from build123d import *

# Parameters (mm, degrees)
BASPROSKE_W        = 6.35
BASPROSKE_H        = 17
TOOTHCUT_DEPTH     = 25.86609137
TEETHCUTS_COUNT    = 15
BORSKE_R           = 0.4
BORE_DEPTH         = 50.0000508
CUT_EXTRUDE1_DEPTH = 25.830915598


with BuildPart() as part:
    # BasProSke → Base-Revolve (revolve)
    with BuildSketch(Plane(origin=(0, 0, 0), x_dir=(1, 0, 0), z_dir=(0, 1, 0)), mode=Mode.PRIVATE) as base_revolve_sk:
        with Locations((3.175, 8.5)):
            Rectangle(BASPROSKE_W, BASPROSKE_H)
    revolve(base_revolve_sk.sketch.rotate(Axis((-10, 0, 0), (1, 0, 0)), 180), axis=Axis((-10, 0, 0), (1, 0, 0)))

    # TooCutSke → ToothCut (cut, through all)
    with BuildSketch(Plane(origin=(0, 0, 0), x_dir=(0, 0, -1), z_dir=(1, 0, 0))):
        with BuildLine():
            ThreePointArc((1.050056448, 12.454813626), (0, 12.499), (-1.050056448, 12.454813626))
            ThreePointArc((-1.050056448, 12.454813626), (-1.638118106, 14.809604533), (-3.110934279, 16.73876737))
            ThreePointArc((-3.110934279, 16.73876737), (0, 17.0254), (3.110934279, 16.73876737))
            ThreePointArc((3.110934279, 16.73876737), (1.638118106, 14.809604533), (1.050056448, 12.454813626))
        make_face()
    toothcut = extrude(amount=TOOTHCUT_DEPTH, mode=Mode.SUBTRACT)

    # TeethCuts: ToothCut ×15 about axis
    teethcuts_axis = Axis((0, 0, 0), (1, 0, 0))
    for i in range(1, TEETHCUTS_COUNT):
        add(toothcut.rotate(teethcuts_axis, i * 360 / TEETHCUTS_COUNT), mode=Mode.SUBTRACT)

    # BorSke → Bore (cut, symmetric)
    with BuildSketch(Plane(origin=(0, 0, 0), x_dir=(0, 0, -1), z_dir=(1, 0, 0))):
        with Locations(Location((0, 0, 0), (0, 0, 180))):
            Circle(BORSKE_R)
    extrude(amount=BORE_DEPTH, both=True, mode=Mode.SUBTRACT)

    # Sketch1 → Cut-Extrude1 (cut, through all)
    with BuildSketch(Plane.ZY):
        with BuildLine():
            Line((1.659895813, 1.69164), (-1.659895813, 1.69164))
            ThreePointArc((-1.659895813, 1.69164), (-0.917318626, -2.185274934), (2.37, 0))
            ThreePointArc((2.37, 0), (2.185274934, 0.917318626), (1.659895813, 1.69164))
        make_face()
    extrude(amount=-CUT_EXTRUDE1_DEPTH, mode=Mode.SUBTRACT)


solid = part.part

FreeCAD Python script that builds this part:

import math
import FreeCAD as App
import Part
import Sketcher

V = App.Vector
Q = App.Units.Quantity

doc = App.newDocument("Part")
body = doc.addObject("PartDesign::Body", "Body")

# Sketch on XZ plane
sketch1 = body.newObject("Sketcher::SketchObject", "Sketch")
sketch1.AttachmentSupport = (doc.getObject("XZ_Plane"), [""])
sketch1.MapMode = "FlatFace"
sketch1.addGeometry([
    Part.LineSegment(V(0, -17, 0), V(0, 0, 0)),
    Part.LineSegment(V(0, 0, 0), V(6, 0, 0)),
    Part.LineSegment(V(6, 0, 0), V(6, -17, 0)),
    Part.LineSegment(V(6, -17, 0), V(0, -17, 0)),
], False)
sketch1.addConstraint([
    Sketcher.Constraint("Coincident", 0, 2, 1, 1),
    Sketcher.Constraint("Coincident", 1, 2, 2, 1),
    Sketcher.Constraint("Coincident", 2, 2, 3, 1),
    Sketcher.Constraint("Coincident", 3, 2, 0, 1),
    Sketcher.Constraint("Vertical", 0),
    Sketcher.Constraint("Horizontal", 1),
    Sketcher.Constraint("Vertical", 2),
    Sketcher.Constraint("Horizontal", 3),
    Sketcher.Constraint("Coincident", 0, 2, -1, 1),
    Sketcher.Constraint("DistanceY", 0, 1, 0, 2, Q("17 mm")),
    Sketcher.Constraint("DistanceX", 1, 1, 1, 2, Q("6.35 mm")),
])
revolution = body.newObject("PartDesign::Revolution", "Revolution")
revolution.Profile = sketch1
revolution.ReferenceAxis = (sketch1, ["H_Axis"])
revolution.Angle = 360

# Sketch on YZ plane
sketch2 = body.newObject("Sketcher::SketchObject", "Sketch001")
sketch2.AttachmentSupport = (doc.getObject("YZ_Plane"), [""])
sketch2.MapMode = "FlatFace"
sketch2.addGeometry([
    Part.ArcOfCircle(Part.Circle(V(0, 0, 0), V(0, 0, 1), 12.5), math.radians(-4.82), math.radians(4.82)),
    Part.ArcOfCircle(Part.Circle(V(12.2, -7, 0), V(0, 0, 1), 6), math.radians(41), math.radians(88)),
    Part.ArcOfCircle(Part.Circle(V(0, 0, 0), V(0, 0, 1), 17), math.radians(-11), math.radians(11)),
    Part.ArcOfCircle(Part.Circle(V(12.2, 7, 0), V(0, 0, 1), 6), math.radians(-88), math.radians(-41)),
], False)
sketch2.addConstraint([
    Sketcher.Constraint("Coincident", 0, 1, 1, 2),
    Sketcher.Constraint("Coincident", 1, 1, 2, 1),
    Sketcher.Constraint("Coincident", 2, 2, 3, 2),
    Sketcher.Constraint("Coincident", 3, 1, 0, 2),
    Sketcher.Constraint("Coincident", 0, 3, -1, 1),
    Sketcher.Constraint("Coincident", 2, 3, -1, 1),
    Sketcher.Constraint("Equal", 1, 3),
    Sketcher.Constraint("Symmetric", 1, 3, 3, 3, -1),
    Sketcher.Constraint("Radius", 1, Q("6 mm")),
    Sketcher.Constraint("Radius", 0, Q("12.499 mm")),
    Sketcher.Constraint("Radius", 2, Q("17.0254 mm")),
    Sketcher.Constraint("DistanceY", 1, 3, 3, 3, Q("14.089999 mm")),
    Sketcher.Constraint("DistanceX", -1, 1, 1, 3, Q("12.208521 mm")),
])
pocket1 = body.newObject("PartDesign::Pocket", "Pocket")
pocket1.Profile = sketch2
pocket1.Type = "ThroughAll"
pocket1.Reversed = True
doc.recompute()

polarpattern = body.newObject("PartDesign::PolarPattern", "PolarPattern")
polarpattern.Originals = [pocket1]
polarpattern.Axis = (doc.getObject("X_Axis"), [""])
polarpattern.Angle = 360
polarpattern.Occurrences = 15
body.Tip = polarpattern

# Sketch on YZ plane
sketch3 = body.newObject("Sketcher::SketchObject", "Sketch002")
sketch3.AttachmentSupport = (doc.getObject("YZ_Plane"), [""])
sketch3.MapMode = "FlatFace"
sketch3.addGeometry(Part.Circle(V(0, 0, 0), V(0, 0, 1), 0.4), False)
sketch3.addConstraint([
    Sketcher.Constraint("Coincident", 0, 3, -1, 1),
    Sketcher.Constraint("Diameter", 0, Q("0.8 mm")),
])
pocket2 = body.newObject("PartDesign::Pocket", "Pocket001")
pocket2.Profile = sketch3
pocket2.Length = 100.000102
pocket2.Midplane = True

# Sketch on YZ plane
sketch4 = body.newObject("Sketcher::SketchObject", "Sketch003")
sketch4.AttachmentSupport = (doc.getObject("YZ_Plane"), [""])
sketch4.MapMode = "FlatFace"
sketch4.addGeometry([
    Part.LineSegment(V(1.7, 1.7, 0), V(1.7, -1.7, 0)),
    Part.ArcOfCircle(Part.Circle(V(0, 0, 0), V(0, 0, 1), 2.4), math.radians(90), math.radians(316)),
    Part.ArcOfCircle(Part.Circle(V(0, 0, 0), V(0, 0, 1), 2.4), math.radians(44), math.radians(90)),
], False)
sketch4.addConstraint([
    Sketcher.Constraint("Coincident", 0, 2, 1, 2),
    Sketcher.Constraint("Tangent", 1, 1, 2, 2),
    Sketcher.Constraint("Coincident", 2, 1, 0, 1),
    Sketcher.Constraint("Vertical", 0),
    Sketcher.Constraint("Coincident", 1, 3, -1, 1),
    Sketcher.Constraint("Equal", 1, 2),
    Sketcher.Constraint("PointOnObject", 1, 1, -2),
    Sketcher.Constraint("Radius", 1, Q("2.37 mm")),
    Sketcher.Constraint("DistanceY", 0, 2, 0, 1, Q("3.319792 mm")),
])
pocket3 = body.newObject("PartDesign::Pocket", "Pocket002")
pocket3.Profile = sketch4
pocket3.Type = "ThroughAll"
pocket3.Reversed = True

doc.recompute()
